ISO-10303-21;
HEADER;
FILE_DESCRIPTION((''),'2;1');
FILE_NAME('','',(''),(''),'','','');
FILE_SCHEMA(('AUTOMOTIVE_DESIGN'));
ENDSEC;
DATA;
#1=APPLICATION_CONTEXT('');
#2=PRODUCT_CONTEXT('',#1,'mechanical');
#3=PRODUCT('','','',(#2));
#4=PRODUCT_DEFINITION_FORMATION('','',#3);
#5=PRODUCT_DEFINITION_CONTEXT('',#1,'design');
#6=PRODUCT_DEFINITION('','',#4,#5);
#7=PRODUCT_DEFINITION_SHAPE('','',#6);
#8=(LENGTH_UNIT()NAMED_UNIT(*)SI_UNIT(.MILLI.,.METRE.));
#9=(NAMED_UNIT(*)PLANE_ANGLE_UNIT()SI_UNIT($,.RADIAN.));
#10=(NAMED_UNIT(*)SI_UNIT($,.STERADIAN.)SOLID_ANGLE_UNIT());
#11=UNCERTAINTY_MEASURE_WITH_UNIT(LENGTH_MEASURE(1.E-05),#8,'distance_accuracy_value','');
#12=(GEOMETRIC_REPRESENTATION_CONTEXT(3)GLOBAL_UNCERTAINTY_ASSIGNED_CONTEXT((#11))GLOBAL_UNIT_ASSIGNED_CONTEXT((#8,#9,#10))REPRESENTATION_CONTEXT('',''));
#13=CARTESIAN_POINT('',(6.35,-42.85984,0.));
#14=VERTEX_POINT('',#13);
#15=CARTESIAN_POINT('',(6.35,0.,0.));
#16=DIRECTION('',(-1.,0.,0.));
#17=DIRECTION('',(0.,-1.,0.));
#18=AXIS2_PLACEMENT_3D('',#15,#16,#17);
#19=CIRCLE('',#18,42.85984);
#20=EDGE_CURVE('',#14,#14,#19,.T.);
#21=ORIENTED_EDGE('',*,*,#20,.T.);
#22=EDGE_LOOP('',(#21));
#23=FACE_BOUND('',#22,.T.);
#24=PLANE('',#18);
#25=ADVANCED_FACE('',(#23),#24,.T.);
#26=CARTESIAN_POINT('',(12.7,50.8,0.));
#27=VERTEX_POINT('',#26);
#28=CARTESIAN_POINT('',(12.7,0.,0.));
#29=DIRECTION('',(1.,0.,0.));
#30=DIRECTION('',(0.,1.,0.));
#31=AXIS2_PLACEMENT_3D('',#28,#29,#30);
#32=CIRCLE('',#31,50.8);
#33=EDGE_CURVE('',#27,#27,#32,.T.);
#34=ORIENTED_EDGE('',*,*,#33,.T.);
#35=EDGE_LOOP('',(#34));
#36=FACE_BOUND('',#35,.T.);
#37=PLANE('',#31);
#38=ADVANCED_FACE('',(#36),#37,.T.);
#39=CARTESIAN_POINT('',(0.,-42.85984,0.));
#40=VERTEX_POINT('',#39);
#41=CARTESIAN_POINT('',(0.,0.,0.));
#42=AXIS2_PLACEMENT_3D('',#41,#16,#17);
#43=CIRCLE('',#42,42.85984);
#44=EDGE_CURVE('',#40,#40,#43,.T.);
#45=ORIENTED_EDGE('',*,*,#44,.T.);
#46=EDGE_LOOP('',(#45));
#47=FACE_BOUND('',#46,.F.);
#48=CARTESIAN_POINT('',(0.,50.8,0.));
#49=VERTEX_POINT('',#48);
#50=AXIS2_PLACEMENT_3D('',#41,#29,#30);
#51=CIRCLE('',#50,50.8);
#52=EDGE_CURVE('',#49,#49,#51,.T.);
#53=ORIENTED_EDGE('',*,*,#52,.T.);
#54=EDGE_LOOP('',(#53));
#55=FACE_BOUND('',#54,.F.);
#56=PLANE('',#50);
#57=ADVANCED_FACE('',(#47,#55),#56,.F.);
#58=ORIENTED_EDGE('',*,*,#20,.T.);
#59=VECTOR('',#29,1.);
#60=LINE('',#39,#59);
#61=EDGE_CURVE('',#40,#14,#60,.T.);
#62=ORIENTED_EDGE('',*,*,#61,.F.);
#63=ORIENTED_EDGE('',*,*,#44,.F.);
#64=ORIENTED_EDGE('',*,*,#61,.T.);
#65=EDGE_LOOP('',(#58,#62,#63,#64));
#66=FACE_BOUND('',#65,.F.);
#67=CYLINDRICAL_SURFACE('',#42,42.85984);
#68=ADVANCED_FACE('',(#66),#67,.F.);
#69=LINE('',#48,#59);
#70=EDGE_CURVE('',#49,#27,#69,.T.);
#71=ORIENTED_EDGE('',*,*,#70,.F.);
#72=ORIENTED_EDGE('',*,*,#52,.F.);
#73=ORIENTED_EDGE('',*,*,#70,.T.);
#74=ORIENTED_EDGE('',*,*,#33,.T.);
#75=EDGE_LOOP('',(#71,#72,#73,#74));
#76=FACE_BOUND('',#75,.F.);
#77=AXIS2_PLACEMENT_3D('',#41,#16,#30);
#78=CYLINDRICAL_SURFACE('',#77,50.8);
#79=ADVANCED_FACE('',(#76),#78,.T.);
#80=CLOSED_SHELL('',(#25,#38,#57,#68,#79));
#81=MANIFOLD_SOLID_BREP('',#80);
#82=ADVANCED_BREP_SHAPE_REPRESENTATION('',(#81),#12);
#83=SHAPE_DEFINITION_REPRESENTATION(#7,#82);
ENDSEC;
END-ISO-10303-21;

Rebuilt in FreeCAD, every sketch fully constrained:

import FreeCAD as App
import Part
import Sketcher
Q = App.Units.Quantity

doc = App.newDocument("Part")
body = doc.addObject("PartDesign::Body", "Body")

# Sketch on YZ plane
sketch1 = body.newObject("Sketcher::SketchObject", "Sketch")
sketch1.AttachmentSupport = (doc.getObject("YZ_Plane"), [""])
sketch1.MapMode = "FlatFace"
sketch1.addGeometry(Part.Circle(App.Vector(0, 0, 0), App.Vector(0, 0, 1), 51), False)
sketch1.addConstraint([
    Sketcher.Constraint("Coincident", 0, 3, -1, 1),
    Sketcher.Constraint("Diameter", 0, Q("4 in")),
])
pad1 = body.newObject("PartDesign::Pad", "Pad")
pad1.Profile = sketch1
pad1.Length = Q("0.5 in")

# Sketch on YZ plane
sketch2 = body.newObject("Sketcher::SketchObject", "Sketch001")
sketch2.AttachmentSupport = (doc.getObject("YZ_Plane"), [""])
sketch2.MapMode = "FlatFace"
sketch2.addGeometry(Part.Circle(App.Vector(0, 0, 0), App.Vector(0, 0, 1), 43), False)
sketch2.addConstraint([
    Sketcher.Constraint("Coincident", 0, 3, -1, 1),
    Sketcher.Constraint("Diameter", 0, 85.71968),
])
pocket1 = body.newObject("PartDesign::Pocket", "Pocket")
pocket1.Profile = sketch2
pocket1.Length = Q("0.25 in")
pocket1.Reversed = True

doc.recompute()
